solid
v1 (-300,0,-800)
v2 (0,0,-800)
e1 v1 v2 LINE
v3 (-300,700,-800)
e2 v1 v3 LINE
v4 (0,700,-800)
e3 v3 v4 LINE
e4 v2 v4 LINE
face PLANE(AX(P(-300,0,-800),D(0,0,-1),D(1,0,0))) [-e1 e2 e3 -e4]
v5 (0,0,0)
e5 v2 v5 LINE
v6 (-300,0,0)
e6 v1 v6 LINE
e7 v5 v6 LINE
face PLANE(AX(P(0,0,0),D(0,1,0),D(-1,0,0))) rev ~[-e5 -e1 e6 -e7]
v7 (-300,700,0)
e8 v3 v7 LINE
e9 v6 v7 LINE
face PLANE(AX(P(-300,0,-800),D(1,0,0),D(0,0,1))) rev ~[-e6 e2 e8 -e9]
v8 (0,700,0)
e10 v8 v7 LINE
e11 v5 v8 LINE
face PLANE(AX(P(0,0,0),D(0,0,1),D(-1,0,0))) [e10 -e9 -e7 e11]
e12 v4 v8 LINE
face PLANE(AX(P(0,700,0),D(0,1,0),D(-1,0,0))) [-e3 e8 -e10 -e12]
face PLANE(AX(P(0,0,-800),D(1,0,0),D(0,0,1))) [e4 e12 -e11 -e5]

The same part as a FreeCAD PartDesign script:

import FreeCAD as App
import Part
import Sketcher
Q = App.Units.Quantity

doc = App.newDocument("Part")
body = doc.addObject("PartDesign::Body", "Body")

sketch1 = body.newObject("Sketcher::SketchObject", "Sketch")
sketch1.AttachmentSupport = (doc.getObject("XZ_Plane"), [""])
sketch1.MapMode = "FlatFace"
sketch1.addGeometry(Part.LineSegment(App.Vector(-300, 0, 0), App.Vector(0, 0, 0)), False)
sketch1.addGeometry(Part.LineSegment(App.Vector(0, 0, 0), App.Vector(0, -800, 0)), False)
sketch1.addGeometry(Part.LineSegment(App.Vector(0, -800, 0), App.Vector(-300, -800, 0)), False)
sketch1.addGeometry(Part.LineSegment(App.Vector(-300, -800, 0), App.Vector(-300, 0, 0)), False)
sketch1.addConstraint(Sketcher.Constraint("Coincident", 0, 2, 1, 1))
sketch1.addConstraint(Sketcher.Constraint("Coincident", 1, 2, 2, 1))
sketch1.addConstraint(Sketcher.Constraint("Coincident", 2, 2, 3, 1))
sketch1.addConstraint(Sketcher.Constraint("Coincident", 3, 2, 0, 1))
sketch1.addConstraint(Sketcher.Constraint("Horizontal", 0))
sketch1.addConstraint(Sketcher.Constraint("Vertical", 1))
sketch1.addConstraint(Sketcher.Constraint("Horizontal", 2))
sketch1.addConstraint(Sketcher.Constraint("Vertical", 3))
sketch1.addConstraint(Sketcher.Constraint("Coincident", 0, 2, -1, 1))
sketch1.addConstraint(Sketcher.Constraint("DistanceX", 0, 1, 0, 2, Q("300 mm")))
sketch1.addConstraint(Sketcher.Constraint("DistanceY", 1, 2, 1, 1, Q("800 mm")))
pad1 = body.newObject("PartDesign::Pad", "Pad")
pad1.Profile = sketch1
pad1.Length = 700
pad1.Reversed = True

doc.recompute()
